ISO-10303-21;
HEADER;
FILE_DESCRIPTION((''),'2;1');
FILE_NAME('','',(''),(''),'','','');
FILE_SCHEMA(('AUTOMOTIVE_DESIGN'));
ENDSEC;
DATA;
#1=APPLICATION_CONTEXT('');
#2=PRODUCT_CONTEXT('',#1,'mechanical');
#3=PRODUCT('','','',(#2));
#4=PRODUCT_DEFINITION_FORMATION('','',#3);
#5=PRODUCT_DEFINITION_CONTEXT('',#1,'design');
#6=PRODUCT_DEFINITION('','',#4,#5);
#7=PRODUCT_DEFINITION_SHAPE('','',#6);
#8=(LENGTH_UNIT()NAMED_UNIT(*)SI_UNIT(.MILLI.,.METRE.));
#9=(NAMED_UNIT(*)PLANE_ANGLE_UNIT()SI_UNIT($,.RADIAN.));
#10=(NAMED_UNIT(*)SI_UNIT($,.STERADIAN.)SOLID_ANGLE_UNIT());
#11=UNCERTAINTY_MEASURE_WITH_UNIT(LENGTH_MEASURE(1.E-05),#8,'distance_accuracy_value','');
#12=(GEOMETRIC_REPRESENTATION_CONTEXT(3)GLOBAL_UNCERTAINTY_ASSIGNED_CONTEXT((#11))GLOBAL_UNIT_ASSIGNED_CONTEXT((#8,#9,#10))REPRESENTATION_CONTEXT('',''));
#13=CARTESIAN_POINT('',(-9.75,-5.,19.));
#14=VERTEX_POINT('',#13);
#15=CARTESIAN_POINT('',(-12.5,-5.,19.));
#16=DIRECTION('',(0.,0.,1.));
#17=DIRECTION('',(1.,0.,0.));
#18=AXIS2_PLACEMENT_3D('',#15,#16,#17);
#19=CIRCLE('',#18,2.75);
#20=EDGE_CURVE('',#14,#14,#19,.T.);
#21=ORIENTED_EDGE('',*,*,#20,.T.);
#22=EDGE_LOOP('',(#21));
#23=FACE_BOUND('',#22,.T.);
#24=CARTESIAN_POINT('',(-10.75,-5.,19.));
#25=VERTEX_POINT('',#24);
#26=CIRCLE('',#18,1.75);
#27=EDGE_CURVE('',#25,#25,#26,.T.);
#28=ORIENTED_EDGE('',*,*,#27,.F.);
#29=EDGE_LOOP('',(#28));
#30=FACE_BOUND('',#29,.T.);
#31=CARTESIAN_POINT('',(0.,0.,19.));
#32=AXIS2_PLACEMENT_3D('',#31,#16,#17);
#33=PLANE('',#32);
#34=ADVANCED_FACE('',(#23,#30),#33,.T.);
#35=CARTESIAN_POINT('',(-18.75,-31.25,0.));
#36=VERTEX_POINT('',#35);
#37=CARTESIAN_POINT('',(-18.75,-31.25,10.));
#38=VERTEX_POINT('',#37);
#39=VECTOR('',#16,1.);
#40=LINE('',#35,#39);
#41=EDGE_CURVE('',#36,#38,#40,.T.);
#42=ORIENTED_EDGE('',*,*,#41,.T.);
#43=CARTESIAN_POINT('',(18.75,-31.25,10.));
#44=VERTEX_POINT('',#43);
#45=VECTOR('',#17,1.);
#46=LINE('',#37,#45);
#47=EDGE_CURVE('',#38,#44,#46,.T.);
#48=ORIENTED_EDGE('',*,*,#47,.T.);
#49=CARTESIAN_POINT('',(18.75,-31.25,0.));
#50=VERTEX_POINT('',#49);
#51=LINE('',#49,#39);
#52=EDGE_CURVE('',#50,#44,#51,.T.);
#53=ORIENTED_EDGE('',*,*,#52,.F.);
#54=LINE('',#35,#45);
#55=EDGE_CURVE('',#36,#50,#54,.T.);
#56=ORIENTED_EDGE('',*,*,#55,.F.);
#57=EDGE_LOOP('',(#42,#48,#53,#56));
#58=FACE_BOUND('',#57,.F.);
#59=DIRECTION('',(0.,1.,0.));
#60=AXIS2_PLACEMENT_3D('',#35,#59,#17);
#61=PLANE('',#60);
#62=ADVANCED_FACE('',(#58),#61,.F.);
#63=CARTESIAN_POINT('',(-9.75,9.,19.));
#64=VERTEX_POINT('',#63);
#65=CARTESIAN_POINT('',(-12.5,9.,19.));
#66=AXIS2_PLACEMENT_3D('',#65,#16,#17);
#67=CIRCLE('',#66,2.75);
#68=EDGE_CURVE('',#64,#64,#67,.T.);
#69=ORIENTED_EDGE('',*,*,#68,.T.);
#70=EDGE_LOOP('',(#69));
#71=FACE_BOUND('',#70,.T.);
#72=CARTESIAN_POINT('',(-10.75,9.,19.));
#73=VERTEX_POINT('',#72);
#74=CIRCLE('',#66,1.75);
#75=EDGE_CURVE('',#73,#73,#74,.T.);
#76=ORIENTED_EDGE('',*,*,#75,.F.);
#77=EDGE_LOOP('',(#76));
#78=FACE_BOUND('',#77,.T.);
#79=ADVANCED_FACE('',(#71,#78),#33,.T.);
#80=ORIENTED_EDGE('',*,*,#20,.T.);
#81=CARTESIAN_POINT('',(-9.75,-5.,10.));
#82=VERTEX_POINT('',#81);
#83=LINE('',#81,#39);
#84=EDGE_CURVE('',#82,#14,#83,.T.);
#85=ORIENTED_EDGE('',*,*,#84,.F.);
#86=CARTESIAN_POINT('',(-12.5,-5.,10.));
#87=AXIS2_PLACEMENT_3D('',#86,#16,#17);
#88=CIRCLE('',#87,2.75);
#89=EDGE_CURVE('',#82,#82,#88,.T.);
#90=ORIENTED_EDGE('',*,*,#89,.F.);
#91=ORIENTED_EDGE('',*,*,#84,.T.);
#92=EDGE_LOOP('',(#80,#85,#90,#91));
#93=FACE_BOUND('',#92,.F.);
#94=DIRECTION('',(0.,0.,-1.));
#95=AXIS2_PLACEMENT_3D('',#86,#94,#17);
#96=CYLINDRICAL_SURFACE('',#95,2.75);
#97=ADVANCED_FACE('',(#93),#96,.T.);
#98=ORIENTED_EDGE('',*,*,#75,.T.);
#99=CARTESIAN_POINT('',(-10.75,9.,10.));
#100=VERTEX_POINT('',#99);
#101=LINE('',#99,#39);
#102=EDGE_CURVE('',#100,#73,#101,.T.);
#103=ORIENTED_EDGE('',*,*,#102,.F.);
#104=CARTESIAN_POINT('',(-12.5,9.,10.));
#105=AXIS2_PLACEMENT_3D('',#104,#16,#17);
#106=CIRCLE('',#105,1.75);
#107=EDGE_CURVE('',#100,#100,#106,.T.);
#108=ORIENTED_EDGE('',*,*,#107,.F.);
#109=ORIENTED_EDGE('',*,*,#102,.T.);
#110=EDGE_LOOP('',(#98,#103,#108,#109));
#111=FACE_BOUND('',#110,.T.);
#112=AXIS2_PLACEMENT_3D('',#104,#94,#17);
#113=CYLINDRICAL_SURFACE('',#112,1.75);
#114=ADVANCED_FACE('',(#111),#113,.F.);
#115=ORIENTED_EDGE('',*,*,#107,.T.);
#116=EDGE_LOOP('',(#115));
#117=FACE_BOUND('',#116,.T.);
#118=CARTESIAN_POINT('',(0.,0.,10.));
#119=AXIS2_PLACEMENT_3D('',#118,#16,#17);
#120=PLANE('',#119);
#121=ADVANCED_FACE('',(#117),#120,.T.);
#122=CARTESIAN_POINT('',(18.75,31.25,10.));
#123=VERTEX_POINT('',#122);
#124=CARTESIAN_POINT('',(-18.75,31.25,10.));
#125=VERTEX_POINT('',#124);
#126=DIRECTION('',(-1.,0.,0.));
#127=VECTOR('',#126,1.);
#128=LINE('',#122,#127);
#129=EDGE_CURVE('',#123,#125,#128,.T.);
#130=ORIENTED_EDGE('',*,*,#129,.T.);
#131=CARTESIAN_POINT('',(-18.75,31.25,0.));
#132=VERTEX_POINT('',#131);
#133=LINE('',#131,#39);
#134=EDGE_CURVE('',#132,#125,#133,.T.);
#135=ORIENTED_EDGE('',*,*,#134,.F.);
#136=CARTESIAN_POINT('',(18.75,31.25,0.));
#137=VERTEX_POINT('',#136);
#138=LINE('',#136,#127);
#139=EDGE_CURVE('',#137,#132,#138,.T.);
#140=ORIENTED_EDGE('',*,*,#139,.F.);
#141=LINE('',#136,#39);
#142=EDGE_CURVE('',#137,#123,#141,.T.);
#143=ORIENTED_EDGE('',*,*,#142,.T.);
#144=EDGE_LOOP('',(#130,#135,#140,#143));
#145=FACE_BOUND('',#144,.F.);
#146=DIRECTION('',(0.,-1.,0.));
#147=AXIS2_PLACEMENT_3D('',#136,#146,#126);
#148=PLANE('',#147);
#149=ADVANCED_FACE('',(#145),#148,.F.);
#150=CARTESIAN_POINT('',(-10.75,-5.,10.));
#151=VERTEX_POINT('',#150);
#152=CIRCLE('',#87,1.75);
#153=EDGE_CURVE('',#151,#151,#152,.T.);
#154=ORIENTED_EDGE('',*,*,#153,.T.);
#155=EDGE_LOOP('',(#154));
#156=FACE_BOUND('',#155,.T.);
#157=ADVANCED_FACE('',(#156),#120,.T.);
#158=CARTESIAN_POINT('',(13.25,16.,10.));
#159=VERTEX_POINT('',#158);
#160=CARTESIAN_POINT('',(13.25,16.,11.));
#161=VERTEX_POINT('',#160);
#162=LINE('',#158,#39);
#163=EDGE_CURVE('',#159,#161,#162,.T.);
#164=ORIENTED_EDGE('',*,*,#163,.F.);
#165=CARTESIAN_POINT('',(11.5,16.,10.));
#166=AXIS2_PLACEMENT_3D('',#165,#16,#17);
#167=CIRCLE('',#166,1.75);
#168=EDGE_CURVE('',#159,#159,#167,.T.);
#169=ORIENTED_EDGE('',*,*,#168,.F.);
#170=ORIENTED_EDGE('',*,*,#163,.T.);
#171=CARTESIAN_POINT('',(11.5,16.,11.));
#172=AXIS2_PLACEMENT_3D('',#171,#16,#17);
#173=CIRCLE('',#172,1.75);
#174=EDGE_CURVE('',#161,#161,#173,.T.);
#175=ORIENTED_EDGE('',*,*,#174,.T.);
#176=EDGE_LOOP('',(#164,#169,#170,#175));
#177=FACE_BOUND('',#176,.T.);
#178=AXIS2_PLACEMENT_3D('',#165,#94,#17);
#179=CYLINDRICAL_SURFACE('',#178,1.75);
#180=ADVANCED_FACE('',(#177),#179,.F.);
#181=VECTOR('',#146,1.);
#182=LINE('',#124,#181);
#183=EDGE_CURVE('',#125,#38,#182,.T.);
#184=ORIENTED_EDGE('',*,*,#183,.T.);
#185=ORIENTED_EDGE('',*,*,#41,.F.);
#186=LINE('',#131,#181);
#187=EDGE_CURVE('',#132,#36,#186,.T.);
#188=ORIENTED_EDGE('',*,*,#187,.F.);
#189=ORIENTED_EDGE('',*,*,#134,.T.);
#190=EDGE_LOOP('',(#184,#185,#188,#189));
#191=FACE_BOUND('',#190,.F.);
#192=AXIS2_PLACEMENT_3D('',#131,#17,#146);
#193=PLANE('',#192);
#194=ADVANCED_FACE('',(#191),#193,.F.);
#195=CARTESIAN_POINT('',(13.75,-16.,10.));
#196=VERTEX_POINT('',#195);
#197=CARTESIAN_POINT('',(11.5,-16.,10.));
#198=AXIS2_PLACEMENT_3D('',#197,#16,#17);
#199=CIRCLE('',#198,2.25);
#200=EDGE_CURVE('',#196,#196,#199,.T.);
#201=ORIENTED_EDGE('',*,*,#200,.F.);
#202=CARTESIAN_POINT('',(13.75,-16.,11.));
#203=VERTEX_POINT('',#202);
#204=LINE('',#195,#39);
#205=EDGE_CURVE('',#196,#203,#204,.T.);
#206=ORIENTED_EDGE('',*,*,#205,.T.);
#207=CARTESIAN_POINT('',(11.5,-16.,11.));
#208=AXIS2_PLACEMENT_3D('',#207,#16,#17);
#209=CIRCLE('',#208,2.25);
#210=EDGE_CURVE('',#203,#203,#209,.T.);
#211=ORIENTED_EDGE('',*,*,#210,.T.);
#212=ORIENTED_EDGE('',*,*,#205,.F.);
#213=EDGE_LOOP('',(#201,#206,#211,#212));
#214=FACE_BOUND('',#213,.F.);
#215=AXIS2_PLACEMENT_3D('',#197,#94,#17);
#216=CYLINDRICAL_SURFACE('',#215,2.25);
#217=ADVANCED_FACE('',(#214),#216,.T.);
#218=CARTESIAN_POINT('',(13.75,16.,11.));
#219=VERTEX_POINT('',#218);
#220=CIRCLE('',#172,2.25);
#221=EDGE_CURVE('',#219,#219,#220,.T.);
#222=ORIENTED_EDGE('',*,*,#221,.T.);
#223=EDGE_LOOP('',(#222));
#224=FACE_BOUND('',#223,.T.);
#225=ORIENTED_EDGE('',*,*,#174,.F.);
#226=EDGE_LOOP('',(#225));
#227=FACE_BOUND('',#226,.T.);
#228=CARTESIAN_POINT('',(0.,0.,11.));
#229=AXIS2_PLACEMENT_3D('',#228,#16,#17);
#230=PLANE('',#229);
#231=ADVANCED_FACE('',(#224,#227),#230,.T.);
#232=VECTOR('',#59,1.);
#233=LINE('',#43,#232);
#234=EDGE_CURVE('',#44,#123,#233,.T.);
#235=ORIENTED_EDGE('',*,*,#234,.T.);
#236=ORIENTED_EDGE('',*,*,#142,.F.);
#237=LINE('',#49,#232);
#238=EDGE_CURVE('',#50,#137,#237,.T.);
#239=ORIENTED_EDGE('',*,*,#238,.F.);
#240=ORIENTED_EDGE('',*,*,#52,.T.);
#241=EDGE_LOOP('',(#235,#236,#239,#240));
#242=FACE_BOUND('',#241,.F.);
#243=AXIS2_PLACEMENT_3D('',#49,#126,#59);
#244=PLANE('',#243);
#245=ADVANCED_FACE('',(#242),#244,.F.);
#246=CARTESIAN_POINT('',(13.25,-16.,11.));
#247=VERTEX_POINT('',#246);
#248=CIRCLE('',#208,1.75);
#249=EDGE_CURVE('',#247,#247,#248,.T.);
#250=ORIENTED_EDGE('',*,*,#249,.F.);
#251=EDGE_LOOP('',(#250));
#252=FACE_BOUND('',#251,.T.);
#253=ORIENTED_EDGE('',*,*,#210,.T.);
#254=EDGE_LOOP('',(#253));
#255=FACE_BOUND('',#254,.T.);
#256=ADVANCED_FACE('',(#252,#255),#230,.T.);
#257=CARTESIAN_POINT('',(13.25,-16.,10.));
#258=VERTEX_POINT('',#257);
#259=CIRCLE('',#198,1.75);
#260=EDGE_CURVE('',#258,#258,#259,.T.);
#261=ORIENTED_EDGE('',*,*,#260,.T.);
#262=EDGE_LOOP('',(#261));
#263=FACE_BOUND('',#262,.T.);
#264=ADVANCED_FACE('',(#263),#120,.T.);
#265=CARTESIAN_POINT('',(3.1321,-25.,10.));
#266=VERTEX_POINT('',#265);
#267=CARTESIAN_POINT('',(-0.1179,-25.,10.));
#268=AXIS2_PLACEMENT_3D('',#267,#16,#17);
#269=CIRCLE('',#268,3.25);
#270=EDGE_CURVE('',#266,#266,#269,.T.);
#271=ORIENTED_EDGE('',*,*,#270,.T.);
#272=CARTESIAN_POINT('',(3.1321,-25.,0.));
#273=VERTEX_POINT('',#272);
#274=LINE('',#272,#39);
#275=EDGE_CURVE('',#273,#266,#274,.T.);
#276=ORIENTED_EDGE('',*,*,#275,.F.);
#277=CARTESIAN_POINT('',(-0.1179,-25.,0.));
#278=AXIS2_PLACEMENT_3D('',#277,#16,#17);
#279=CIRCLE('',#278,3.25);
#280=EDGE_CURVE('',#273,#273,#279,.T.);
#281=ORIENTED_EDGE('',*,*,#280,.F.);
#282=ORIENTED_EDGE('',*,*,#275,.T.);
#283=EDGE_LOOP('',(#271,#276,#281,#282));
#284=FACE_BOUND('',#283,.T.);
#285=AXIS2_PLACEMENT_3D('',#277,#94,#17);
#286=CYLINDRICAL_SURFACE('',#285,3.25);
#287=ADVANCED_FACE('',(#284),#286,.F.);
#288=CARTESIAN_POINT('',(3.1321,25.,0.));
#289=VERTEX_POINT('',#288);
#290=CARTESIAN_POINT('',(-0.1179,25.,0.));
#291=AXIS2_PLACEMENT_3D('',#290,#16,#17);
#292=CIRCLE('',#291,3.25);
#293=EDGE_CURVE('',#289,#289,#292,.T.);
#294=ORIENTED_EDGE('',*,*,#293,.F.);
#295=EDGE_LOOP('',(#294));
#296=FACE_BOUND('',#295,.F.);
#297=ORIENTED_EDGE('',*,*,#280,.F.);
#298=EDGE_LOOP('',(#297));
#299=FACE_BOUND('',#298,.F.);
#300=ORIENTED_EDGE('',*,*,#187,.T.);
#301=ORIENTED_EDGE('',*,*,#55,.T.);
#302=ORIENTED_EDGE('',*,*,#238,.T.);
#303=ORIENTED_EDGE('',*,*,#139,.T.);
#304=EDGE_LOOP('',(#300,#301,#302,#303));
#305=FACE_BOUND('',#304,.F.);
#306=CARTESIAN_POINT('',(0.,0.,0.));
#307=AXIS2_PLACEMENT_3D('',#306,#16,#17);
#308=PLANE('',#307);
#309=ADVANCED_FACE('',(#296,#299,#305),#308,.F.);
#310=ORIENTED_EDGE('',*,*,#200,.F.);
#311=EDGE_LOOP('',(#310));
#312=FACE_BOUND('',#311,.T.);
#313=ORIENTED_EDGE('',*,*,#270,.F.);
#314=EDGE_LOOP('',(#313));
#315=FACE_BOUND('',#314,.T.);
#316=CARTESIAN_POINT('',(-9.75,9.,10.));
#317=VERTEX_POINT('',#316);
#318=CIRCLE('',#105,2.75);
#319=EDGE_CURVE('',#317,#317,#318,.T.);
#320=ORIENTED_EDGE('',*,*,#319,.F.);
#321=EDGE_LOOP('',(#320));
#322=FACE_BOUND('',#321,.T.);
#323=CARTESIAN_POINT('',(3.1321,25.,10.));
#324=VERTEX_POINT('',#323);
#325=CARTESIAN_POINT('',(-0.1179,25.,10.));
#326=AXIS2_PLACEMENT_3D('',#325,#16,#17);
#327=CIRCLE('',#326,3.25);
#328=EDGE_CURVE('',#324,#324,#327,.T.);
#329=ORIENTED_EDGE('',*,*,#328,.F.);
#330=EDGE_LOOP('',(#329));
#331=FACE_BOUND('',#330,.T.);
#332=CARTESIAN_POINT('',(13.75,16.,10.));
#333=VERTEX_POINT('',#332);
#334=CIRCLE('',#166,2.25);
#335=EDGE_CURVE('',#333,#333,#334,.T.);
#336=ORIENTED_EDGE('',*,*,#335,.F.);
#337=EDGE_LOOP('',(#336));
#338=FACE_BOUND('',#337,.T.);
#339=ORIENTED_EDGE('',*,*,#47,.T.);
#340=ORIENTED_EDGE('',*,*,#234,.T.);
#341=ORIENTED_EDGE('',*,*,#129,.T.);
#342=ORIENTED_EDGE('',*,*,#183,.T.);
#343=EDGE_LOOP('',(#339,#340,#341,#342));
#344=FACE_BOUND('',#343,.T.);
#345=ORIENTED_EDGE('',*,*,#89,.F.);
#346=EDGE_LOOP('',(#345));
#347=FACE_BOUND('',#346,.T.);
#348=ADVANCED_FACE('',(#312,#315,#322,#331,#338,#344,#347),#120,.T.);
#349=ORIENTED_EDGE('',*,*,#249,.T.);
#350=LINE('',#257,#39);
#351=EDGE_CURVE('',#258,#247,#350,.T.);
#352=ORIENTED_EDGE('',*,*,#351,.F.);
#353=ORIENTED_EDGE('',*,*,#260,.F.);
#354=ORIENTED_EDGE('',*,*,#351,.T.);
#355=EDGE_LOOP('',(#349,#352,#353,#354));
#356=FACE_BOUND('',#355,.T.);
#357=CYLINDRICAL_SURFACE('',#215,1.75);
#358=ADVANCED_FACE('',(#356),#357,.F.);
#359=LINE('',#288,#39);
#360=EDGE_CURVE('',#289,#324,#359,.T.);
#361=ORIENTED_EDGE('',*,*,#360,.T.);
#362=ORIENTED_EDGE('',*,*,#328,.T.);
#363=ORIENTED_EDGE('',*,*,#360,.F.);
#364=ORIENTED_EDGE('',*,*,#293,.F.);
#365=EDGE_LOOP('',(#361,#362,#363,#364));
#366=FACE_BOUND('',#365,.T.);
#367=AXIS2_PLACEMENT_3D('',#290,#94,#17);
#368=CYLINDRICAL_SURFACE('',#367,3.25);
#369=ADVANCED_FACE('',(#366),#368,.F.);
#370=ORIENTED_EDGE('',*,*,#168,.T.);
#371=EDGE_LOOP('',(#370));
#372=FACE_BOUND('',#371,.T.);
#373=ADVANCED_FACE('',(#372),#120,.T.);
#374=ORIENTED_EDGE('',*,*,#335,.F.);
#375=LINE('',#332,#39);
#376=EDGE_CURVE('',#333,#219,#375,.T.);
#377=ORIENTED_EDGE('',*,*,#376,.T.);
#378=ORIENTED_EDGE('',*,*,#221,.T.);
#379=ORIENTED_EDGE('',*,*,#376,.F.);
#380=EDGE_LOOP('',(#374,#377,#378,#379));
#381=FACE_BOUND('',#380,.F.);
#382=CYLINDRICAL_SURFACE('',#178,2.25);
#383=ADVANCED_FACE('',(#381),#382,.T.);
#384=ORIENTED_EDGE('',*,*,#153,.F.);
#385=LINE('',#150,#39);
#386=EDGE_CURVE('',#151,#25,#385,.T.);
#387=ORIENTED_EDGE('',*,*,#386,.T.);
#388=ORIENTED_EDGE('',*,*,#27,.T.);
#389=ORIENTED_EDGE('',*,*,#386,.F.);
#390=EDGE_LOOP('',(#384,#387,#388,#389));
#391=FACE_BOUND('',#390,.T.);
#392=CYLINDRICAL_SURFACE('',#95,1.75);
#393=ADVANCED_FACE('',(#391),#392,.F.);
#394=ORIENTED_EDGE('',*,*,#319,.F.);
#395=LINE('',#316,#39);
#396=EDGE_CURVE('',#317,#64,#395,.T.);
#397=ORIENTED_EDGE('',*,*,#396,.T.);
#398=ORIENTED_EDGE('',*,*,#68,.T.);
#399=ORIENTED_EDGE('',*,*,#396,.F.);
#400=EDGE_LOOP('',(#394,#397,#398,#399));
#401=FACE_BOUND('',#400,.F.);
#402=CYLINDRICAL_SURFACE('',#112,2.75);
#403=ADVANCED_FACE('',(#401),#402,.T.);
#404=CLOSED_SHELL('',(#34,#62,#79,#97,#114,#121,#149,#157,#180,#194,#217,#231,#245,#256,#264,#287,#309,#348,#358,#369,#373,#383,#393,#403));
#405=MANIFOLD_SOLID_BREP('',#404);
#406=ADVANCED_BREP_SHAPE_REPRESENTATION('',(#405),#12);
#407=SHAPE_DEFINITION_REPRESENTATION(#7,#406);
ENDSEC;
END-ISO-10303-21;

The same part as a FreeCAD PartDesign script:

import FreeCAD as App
import Part
import Sketcher
Q = App.Units.Quantity


def add_polygon(sketch, points):
    """Adds a closed chain of lines whose ends are joined by coincident constraints."""
    first, n = sketch.GeometryCount, len(points)
    for a, b in zip(points, points[1:] + points[:1]):
        sketch.addGeometry(Part.LineSegment(App.Vector(*a, 0), App.Vector(*b, 0)), False)
    for i in range(n):
        sketch.addConstraint(Sketcher.Constraint("Coincident", first + i, 2, first + (i + 1) % n, 1))

doc = App.newDocument("Part")
body = doc.addObject("PartDesign::Body", "Body")

sketch1 = doc.addObject("Sketcher::SketchObject", "Sketch")
body.addObject(sketch1)
sketch1.AttachmentSupport = (doc.XY_Plane, [""])
sketch1.MapMode = "FlatFace"
add_polygon(sketch1, [(-18.8, -31.2), (18.8, -31.2), (18.8, 31.2), (-18.8, 31.2)])
sketch1.addGeometry(Part.Circle(App.Vector(-0.1, -25, 0), App.Vector(0, 0, 1), 3.2), False)
sketch1.addGeometry(Part.Circle(App.Vector(-0.1, 25, 0), App.Vector(0, 0, 1), 3.2), False)
sketch1.addConstraint(Sketcher.Constraint("Horizontal", 0))
sketch1.addConstraint(Sketcher.Constraint("Vertical", 1))
sketch1.addConstraint(Sketcher.Constraint("Horizontal", 2))
sketch1.addConstraint(Sketcher.Constraint("Vertical", 3))
sketch1.addConstraint(Sketcher.Constraint("Equal", 4, 5))
sketch1.addConstraint(Sketcher.Constraint("Symmetric", 0, 2, 2, 2, -1, 1))
sketch1.addConstraint(Sketcher.Constraint("Symmetric", 4, 3, 5, 3, -1))
sketch1.addConstraint(Sketcher.Constraint("Diameter", 4, Q("6.5 mm")))
sketch1.addConstraint(Sketcher.Constraint("DistanceX", 0, 1, 0, 2, Q("37.5 mm")))
sketch1.addConstraint(Sketcher.Constraint("DistanceY", 1, 1, 1, 2, Q("62.5 mm")))
sketch1.addConstraint(Sketcher.Constraint("DistanceY", 4, 3, -1, 1, Q("25 mm")))
sketch1.addConstraint(Sketcher.Constraint("DistanceX", 4, 3, -1, 1, Q("0.118 mm")))
pad1 = doc.addObject("PartDesign::Pad", "Pad")
body.addObject(pad1)
pad1.Profile = sketch1
pad1.Length = 10

sketch2 = doc.addObject("Sketcher::SketchObject", "Sketch001")
body.addObject(sketch2)
sketch2.AttachmentSupport = (doc.XY_Plane, [""])
sketch2.MapMode = "FlatFace"
sketch2.AttachmentOffset = App.Placement(App.Vector(0, 0, 10), App.Rotation())
sketch2.addGeometry(Part.Circle(App.Vector(11.5, 16, 0), App.Vector(0, 0, 1), 2.2), False)
sketch2.addGeometry(Part.Circle(App.Vector(11.5, 16, 0), App.Vector(0, 0, 1), 1.8), False)
sketch2.addGeometry(Part.Circle(App.Vector(11.5, -16, 0), App.Vector(0, 0, 1), 2.2), False)
sketch2.addGeometry(Part.Circle(App.Vector(11.5, -16, 0), App.Vector(0, 0, 1), 1.8), False)
sketch2.addConstraint(Sketcher.Constraint("Coincident", 1, 3, 0, 3))
sketch2.addConstraint(Sketcher.Constraint("Coincident", 3, 3, 2, 3))
sketch2.addConstraint(Sketcher.Constraint("Equal", 0, 2))
sketch2.addConstraint(Sketcher.Constraint("Equal", 1, 3))
sketch2.addConstraint(Sketcher.Constraint("Symmetric", 0, 3, 2, 3, -1))
sketch2.addConstraint(Sketcher.Constraint("Diameter", 0, Q("4.5 mm")))
sketch2.addConstraint(Sketcher.Constraint("Diameter", 1, Q("3.5 mm")))
sketch2.addConstraint(Sketcher.Constraint("DistanceY", -1, 1, 0, 3, Q("16 mm")))
sketch2.addConstraint(Sketcher.Constraint("DistanceX", -1, 1, 0, 3, Q("11.5 mm")))
pad2 = doc.addObject("PartDesign::Pad", "Pad001")
body.addObject(pad2)
pad2.Profile = sketch2
pad2.Length = 1

sketch3 = doc.addObject("Sketcher::SketchObject", "Sketch002")
body.addObject(sketch3)
sketch3.AttachmentSupport = (doc.XY_Plane, [""])
sketch3.MapMode = "FlatFace"
sketch3.AttachmentOffset = App.Placement(App.Vector(0, 0, 10), App.Rotation())
sketch3.addGeometry(Part.Circle(App.Vector(-12.5, 9, 0), App.Vector(0, 0, 1), 2.8), False)
sketch3.addGeometry(Part.Circle(App.Vector(-12.5, 9, 0), App.Vector(0, 0, 1), 1.8), False)
sketch3.addGeometry(Part.Circle(App.Vector(-12.5, -5, 0), App.Vector(0, 0, 1), 2.8), False)
sketch3.addGeometry(Part.Circle(App.Vector(-12.5, -5, 0), App.Vector(0, 0, 1), 1.8), False)
sketch3.addConstraint(Sketcher.Constraint("Coincident", 1, 3, 0, 3))
sketch3.addConstraint(Sketcher.Constraint("Coincident", 3, 3, 2, 3))
sketch3.addConstraint(Sketcher.Constraint("Equal", 0, 2))
sketch3.addConstraint(Sketcher.Constraint("Equal", 1, 3))
sketch3.addConstraint(Sketcher.Constraint("Vertical", 1, 3, 2, 3))
sketch3.addConstraint(Sketcher.Constraint("Diameter", 0, Q("5.5 mm")))
sketch3.addConstraint(Sketcher.Constraint("Diameter", 1, Q("3.5 mm")))
sketch3.addConstraint(Sketcher.Constraint("DistanceY", -1, 1, 0, 3, Q("9 mm")))
sketch3.addConstraint(Sketcher.Constraint("DistanceY", 2, 3, -1, 1, Q("5 mm")))
sketch3.addConstraint(Sketcher.Constraint("DistanceX", 0, 3, -1, 1, Q("12.5 mm")))
pad3 = doc.addObject("PartDesign::Pad", "Pad002")
body.addObject(pad3)
pad3.Profile = sketch3
pad3.Length = 9

doc.recompute()
